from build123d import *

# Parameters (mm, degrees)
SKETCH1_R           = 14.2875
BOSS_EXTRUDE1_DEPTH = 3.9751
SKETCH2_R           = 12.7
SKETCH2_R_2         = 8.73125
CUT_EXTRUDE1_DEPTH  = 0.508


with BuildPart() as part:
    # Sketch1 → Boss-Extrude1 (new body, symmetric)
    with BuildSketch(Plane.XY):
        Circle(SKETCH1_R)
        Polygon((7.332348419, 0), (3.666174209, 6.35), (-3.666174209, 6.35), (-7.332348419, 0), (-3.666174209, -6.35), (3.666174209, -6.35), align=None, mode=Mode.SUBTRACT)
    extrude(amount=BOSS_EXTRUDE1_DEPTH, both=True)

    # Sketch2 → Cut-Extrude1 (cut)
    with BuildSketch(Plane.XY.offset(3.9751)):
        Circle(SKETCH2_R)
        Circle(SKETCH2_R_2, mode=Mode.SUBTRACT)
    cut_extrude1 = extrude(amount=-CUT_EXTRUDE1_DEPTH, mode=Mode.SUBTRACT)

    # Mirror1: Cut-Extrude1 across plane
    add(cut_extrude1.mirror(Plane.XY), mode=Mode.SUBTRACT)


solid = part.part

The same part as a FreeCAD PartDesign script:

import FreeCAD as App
import Part
import Sketcher
from FreeCAD import Vector
Q = App.Units.Quantity

doc = App.newDocument("Part")
body = doc.addObject("PartDesign::Body", "Body")

# Sketch on XY plane
sketch1 = body.newObject("Sketcher::SketchObject", "Sketch")
sketch1.AttachmentSupport = (doc.getObject("XY_Plane"), [""])
sketch1.MapMode = "FlatFace"
sketch1.addGeometry([
    Part.Circle(Vector(0, 0, 0), Vector(0, 0, 1), 14.2875),  # 0
    Part.LineSegment(Vector(3.666174, 6.35, 0), Vector(7.332348, 0, 0)),  # 1
    Part.LineSegment(Vector(7.332348, 0, 0), Vector(3.666174, -6.35, 0)),  # 2
    Part.LineSegment(Vector(3.666174, -6.35, 0), Vector(-3.666174, -6.35, 0)),  # 3
    Part.LineSegment(Vector(-3.666174, -6.35, 0), Vector(-7.332348, 0, 0)),  # 4
    Part.LineSegment(Vector(-7.332348, 0, 0), Vector(-3.666174, 6.35, 0)),  # 5
    Part.LineSegment(Vector(-3.666174, 6.35, 0), Vector(3.666174, 6.35, 0)),  # 6
], False)
sketch1.addConstraint([
    Sketcher.Constraint("Coincident", 1, 2, 2, 1),
    Sketcher.Constraint("Coincident", 2, 2, 3, 1),
    Sketcher.Constraint("Coincident", 3, 2, 4, 1),
    Sketcher.Constraint("Coincident", 4, 2, 5, 1),
    Sketcher.Constraint("Coincident", 5, 2, 6, 1),
    Sketcher.Constraint("Coincident", 6, 2, 1, 1),
    Sketcher.Constraint("Horizontal", 3),
    Sketcher.Constraint("Horizontal", 6),
    Sketcher.Constraint("Coincident", 0, 3, -1, 1),
    Sketcher.Constraint("Symmetric", 1, 2, 4, 2, -1, 1),
    Sketcher.Constraint("Symmetric", 2, 2, 5, 2, -1, 1),
    Sketcher.Constraint("PointOnObject", 1, 2, -1),
    Sketcher.Constraint("Parallel", 1, 4),
    Sketcher.Constraint("Vertical", 3, 2, 5, 2),
    Sketcher.Constraint("Diameter", 0, Q("1.125 in")),
    Sketcher.Constraint("Angle", 1, Q("-60 deg")),
    Sketcher.Constraint("DistanceY", 3, 2, 5, 2, Q("0.5 in")),
    Sketcher.Constraint("DistanceX", 3, 2, 3, 1, 7.332348),
])
pad1 = body.newObject("PartDesign::Pad", "Pad")
pad1.Profile = sketch1
pad1.Length = Q("0.313 in")
pad1.Midplane = True

# Sketch on XY plane
sketch2 = body.newObject("Sketcher::SketchObject", "Sketch001")
sketch2.AttachmentSupport = (doc.getObject("XY_Plane"), [""])
sketch2.MapMode = "FlatFace"
sketch2.AttachmentOffset = App.Placement(Vector(0, 0, 0.1565 * 25.4), App.Rotation())
sketch2.addGeometry([
    Part.Circle(Vector(0, 0, 0), Vector(0, 0, 1), 12.7),
    Part.Circle(Vector(0, 0, 0), Vector(0, 0, 1), 8.73125),
], False)
sketch2.addConstraint([
    Sketcher.Constraint("Coincident", 0, 3, -1, 1),
    Sketcher.Constraint("Coincident", 1, 3, -1, 1),
    Sketcher.Constraint("Diameter", 0, Q("1 in")),
    Sketcher.Constraint("Diameter", 1, Q("0.6875 in")),
])
pocket1 = body.newObject("PartDesign::Pocket", "Pocket")
pocket1.Profile = sketch2
pocket1.Length = Q("0.02 in")
doc.recompute()

mirrored = body.newObject("PartDesign::Mirrored", "Mirrored")
mirrored.Originals = [pocket1]
mirrored.MirrorPlane = (doc.getObject("XY_Plane"), [""])
body.Tip = mirrored

doc.recompute()
